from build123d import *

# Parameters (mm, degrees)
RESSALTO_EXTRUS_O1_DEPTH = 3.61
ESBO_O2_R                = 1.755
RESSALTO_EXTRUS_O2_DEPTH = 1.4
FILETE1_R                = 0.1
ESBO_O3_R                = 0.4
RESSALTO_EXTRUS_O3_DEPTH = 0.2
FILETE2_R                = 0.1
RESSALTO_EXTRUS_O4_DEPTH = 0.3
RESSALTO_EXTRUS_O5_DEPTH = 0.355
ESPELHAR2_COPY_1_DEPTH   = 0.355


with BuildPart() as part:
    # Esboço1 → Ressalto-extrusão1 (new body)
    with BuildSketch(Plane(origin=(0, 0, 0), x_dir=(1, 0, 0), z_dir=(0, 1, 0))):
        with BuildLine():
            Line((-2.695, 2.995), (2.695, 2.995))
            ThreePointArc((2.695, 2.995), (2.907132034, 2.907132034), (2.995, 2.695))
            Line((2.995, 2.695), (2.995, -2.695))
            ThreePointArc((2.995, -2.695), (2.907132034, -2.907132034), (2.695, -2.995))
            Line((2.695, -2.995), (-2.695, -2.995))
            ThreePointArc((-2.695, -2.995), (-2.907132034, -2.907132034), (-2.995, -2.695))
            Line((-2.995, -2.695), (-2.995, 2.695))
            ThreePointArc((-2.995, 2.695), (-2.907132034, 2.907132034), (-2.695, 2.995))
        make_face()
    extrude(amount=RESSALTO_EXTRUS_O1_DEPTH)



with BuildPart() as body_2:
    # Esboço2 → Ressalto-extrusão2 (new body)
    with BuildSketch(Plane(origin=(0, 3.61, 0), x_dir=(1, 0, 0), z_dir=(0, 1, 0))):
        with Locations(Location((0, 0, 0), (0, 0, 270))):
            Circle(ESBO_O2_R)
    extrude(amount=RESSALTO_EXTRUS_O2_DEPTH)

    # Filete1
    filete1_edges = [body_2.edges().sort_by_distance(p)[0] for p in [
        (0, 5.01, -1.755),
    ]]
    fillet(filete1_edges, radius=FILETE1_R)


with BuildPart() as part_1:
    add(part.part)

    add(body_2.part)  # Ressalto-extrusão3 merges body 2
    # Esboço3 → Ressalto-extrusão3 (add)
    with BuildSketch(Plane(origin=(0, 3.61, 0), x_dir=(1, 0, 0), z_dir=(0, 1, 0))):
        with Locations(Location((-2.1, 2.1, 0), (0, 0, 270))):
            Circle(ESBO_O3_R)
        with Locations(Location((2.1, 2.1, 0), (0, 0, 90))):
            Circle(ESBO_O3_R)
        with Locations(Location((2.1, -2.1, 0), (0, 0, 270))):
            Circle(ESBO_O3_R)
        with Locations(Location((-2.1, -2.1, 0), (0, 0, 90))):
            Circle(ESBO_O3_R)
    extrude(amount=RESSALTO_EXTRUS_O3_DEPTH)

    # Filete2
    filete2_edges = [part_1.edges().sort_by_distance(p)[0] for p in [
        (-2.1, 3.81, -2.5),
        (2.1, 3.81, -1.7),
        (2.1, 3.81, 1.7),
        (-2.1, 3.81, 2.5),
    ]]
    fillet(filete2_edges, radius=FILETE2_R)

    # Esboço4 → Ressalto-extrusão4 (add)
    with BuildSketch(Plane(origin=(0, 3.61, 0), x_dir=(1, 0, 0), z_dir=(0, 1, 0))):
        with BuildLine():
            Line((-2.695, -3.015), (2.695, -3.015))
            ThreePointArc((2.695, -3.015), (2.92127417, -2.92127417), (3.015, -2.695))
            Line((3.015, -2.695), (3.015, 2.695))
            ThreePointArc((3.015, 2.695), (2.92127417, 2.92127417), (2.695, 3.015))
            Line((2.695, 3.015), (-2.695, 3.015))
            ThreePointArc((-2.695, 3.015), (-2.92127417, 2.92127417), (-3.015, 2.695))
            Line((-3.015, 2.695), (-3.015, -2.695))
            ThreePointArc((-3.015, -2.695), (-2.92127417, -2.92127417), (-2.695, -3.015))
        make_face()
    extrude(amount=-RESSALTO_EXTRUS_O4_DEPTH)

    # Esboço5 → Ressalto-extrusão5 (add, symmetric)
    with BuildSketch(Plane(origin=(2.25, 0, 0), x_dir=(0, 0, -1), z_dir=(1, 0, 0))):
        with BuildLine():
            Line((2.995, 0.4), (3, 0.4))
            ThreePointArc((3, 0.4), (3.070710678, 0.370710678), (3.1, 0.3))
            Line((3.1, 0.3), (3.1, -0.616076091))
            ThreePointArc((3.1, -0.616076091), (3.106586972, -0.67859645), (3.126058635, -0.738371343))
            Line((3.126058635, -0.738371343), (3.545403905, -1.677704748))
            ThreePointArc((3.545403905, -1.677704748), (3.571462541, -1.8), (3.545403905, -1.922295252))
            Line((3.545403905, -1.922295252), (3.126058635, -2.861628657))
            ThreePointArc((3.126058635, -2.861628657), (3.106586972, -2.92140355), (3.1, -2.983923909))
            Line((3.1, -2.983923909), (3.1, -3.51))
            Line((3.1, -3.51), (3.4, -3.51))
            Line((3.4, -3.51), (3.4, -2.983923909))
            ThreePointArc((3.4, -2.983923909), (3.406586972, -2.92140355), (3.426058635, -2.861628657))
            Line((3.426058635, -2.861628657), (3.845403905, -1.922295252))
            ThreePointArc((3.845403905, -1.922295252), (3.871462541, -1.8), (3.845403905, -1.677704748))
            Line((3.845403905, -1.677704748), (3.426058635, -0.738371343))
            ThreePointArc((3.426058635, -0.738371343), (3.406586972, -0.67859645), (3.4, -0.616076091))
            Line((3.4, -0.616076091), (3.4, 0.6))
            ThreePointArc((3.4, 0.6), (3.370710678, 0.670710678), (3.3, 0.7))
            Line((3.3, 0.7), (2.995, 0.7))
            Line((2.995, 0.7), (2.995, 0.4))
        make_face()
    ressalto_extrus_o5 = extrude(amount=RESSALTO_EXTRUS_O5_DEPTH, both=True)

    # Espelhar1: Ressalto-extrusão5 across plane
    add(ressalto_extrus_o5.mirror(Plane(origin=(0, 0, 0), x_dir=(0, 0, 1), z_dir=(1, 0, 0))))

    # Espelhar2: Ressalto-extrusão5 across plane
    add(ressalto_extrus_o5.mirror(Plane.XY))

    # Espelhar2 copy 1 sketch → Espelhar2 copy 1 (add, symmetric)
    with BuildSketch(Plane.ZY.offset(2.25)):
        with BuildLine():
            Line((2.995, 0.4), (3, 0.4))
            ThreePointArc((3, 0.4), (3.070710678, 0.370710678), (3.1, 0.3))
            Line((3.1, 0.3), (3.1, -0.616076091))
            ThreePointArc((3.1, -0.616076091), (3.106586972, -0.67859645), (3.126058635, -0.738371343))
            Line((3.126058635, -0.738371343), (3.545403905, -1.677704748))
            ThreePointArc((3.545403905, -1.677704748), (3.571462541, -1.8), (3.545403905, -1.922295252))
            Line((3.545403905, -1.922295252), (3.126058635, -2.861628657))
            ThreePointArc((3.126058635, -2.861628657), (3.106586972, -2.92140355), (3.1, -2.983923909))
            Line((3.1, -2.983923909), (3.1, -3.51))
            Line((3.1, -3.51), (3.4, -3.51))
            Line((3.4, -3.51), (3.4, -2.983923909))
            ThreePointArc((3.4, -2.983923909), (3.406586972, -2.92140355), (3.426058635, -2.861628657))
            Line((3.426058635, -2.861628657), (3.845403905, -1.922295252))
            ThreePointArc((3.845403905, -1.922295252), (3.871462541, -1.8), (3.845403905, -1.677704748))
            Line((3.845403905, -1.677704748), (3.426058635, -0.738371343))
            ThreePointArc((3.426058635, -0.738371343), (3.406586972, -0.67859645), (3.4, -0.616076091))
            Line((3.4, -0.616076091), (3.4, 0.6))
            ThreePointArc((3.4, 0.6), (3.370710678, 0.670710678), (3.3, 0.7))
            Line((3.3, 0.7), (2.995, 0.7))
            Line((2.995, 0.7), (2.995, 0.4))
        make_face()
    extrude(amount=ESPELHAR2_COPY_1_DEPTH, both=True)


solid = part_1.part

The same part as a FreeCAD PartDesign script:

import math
import FreeCAD as App
import Part
import Sketcher
Q = App.Units.Quantity


def edges_at(feature, points):
    """Names of the edges that pass closest to the given points."""
    edges = feature.Shape.Edges
    near = lambda p: min(range(len(edges)), key=lambda i: edges[i].distToShape(Part.Vertex(*p))[0])
    return sorted({f"Edge{near(p) + 1}" for p in points})

doc = App.newDocument("Part")
body = doc.addObject("PartDesign::Body", "Body")

# Sketch on XZ plane
sketch1 = body.newObject("Sketcher::SketchObject", "Sketch")
sketch1.AttachmentSupport = (doc.getObject("XZ_Plane"), [""])
sketch1.MapMode = "FlatFace"
sketch1.addGeometry(Part.LineSegment(App.Vector(2.695, -2.995, 0), App.Vector(-2.695, -2.995, 0)), False)
sketch1.addGeometry(Part.ArcOfCircle(Part.Circle(App.Vector(-2.695, -2.695, 0), App.Vector(0, 0, 1), 0.3), math.radians(-180), math.radians(-90)), False)
sketch1.addGeometry(Part.LineSegment(App.Vector(-2.995, -2.695, 0), App.Vector(-2.995, 2.695, 0)), False)
sketch1.addGeometry(Part.ArcOfCircle(Part.Circle(App.Vector(-2.695, 2.695, 0), App.Vector(0, 0, 1), 0.3), math.radians(90), math.radians(180)), False)
sketch1.addGeometry(Part.LineSegment(App.Vector(-2.695, 2.995, 0), App.Vector(2.695, 2.995, 0)), False)
sketch1.addGeometry(Part.ArcOfCircle(Part.Circle(App.Vector(2.695, 2.695, 0), App.Vector(0, 0, 1), 0.3), math.radians(0), math.radians(90)), False)
sketch1.addGeometry(Part.LineSegment(App.Vector(2.995, 2.695, 0), App.Vector(2.995, -2.695, 0)), False)
sketch1.addGeometry(Part.ArcOfCircle(Part.Circle(App.Vector(2.695, -2.695, 0), App.Vector(0, 0, 1), 0.3), math.radians(-90), math.radians(0)), False)
sketch1.addConstraint(Sketcher.Constraint("Tangent", 0, 2, 1, 2))
sketch1.addConstraint(Sketcher.Constraint("Tangent", 1, 1, 2, 1))
sketch1.addConstraint(Sketcher.Constraint("Tangent", 2, 2, 3, 2))
sketch1.addConstraint(Sketcher.Constraint("Tangent", 3, 1, 4, 1))
sketch1.addConstraint(Sketcher.Constraint("Tangent", 4, 2, 5, 2))
sketch1.addConstraint(Sketcher.Constraint("Tangent", 5, 1, 6, 1))
sketch1.addConstraint(Sketcher.Constraint("Tangent", 6, 2, 7, 2))
sketch1.addConstraint(Sketcher.Constraint("Tangent", 7, 1, 0, 1))
sketch1.addConstraint(Sketcher.Constraint("Horizontal", 0))
sketch1.addConstraint(Sketcher.Constraint("Vertical", 2))
sketch1.addConstraint(Sketcher.Constraint("Horizontal", 4))
sketch1.addConstraint(Sketcher.Constraint("Vertical", 6))
sketch1.addConstraint(Sketcher.Constraint("Equal", 1, 3))
sketch1.addConstraint(Sketcher.Constraint("Equal", 3, 5))
sketch1.addConstraint(Sketcher.Constraint("Equal", 5, 7))
sketch1.addConstraint(Sketcher.Constraint("Symmetric", 1, 3, 5, 3, -1, 1))
sketch1.addConstraint(Sketcher.Constraint("Equal", 4, 2))
sketch1.addConstraint(Sketcher.Constraint("Radius", 1, Q("0.3 mm")))
sketch1.addConstraint(Sketcher.Constraint("DistanceX", 0, 2, 0, 1, Q("5.39 mm")))
pad1 = body.newObject("PartDesign::Pad", "Pad")
pad1.Profile = sketch1
pad1.Length = 3.61
pad1.Reversed = True
body2 = doc.addObject("PartDesign::Body", "Body001")

# Sketch on XZ plane
sketch2 = body2.newObject("Sketcher::SketchObject", "Sketch001")
sketch2.AttachmentSupport = (doc.getObject("XZ_Plane001"), [""])
sketch2.MapMode = "FlatFace"
sketch2.AttachmentOffset = App.Placement(App.Vector(0, 0, -3.61), App.Rotation())
sketch2.addGeometry(Part.Circle(App.Vector(0, 0, 0), App.Vector(0, 0, 1), 1.755), False)
sketch2.addConstraint(Sketcher.Constraint("Coincident", 0, 3, -1, 1))
sketch2.addConstraint(Sketcher.Constraint("Diameter", 0, Q("3.51 mm")))
pad2 = body2.newObject("PartDesign::Pad", "Pad001")
pad2.Profile = sketch2
pad2.Length = 1.4
pad2.Reversed = True
doc.recompute()

fillet = body2.newObject("PartDesign::Fillet", "Fillet")
fillet.Base = (pad2, edges_at(pad2, [(0, 5.01, -1.755)]))
fillet.Radius = 0.1
doc.recompute()

boolean = body.newObject("PartDesign::Boolean", "Boolean")
boolean.Type = "Fuse"
boolean.addObjects([body2])

# Sketch on XZ plane
sketch3 = body.newObject("Sketcher::SketchObject", "Sketch002")
sketch3.AttachmentSupport = (doc.getObject("XZ_Plane"), [""])
sketch3.MapMode = "FlatFace"
sketch3.AttachmentOffset = App.Placement(App.Vector(0, 0, -3.61), App.Rotation())
sketch3.addGeometry(Part.Circle(App.Vector(-2.1, -2.1, 0), App.Vector(0, 0, 1), 0.4), False)
sketch3.addGeometry(Part.Circle(App.Vector(2.1, -2.1, 0), App.Vector(0, 0, 1), 0.4), False)
sketch3.addGeometry(Part.Circle(App.Vector(2.1, 2.1, 0), App.Vector(0, 0, 1), 0.4), False)
sketch3.addGeometry(Part.Circle(App.Vector(-2.1, 2.1, 0), App.Vector(0, 0, 1), 0.4), False)
sketch3.addConstraint(Sketcher.Constraint("Equal", 0, 1))
sketch3.addConstraint(Sketcher.Constraint("Equal", 1, 2))
sketch3.addConstraint(Sketcher.Constraint("Equal", 2, 3))
sketch3.addConstraint(Sketcher.Constraint("Symmetric", 0, 3, 2, 3, -1, 1))
sketch3.addConstraint(Sketcher.Constraint("Symmetric", 1, 3, 3, 3, -1, 1))
sketch3.addConstraint(Sketcher.Constraint("Symmetric", 0, 3, 1, 3, -2))
sketch3.addConstraint(Sketcher.Constraint("Diameter", 0, Q("0.8 mm")))
sketch3.addConstraint(Sketcher.Constraint("DistanceX", 0, 3, -1, 1, Q("2.1 mm")))
sketch3.addConstraint(Sketcher.Constraint("DistanceY", 0, 3, -1, 1, Q("2.1 mm")))
pad3 = body.newObject("PartDesign::Pad", "Pad002")
pad3.Profile = sketch3
pad3.Length = 0.2
pad3.Reversed = True
doc.recompute()

fillet2 = body.newObject("PartDesign::Fillet", "Fillet001")
fillet2.Base = (pad3, edges_at(pad3, [
    (-2.1, 3.81, -2.5),
    (2.1, 3.81, -1.7),
    (2.1, 3.81, 1.7),
    (-2.1, 3.81, 2.5),
]))
fillet2.Radius = 0.1

# Sketch on XZ plane
sketch4 = body.newObject("Sketcher::SketchObject", "Sketch003")
sketch4.AttachmentSupport = (doc.getObject("XZ_Plane"), [""])
sketch4.MapMode = "FlatFace"
sketch4.AttachmentOffset = App.Placement(App.Vector(0, 0, -3.61), App.Rotation())
sketch4.addGeometry(Part.LineSegment(App.Vector(-2.695, 3.015, 0), App.Vector(2.695, 3.015, 0)), False)
sketch4.addGeometry(Part.ArcOfCircle(Part.Circle(App.Vector(2.695, 2.695, 0), App.Vector(0, 0, 1), 0.32), math.radians(0), math.radians(90)), False)
sketch4.addGeometry(Part.LineSegment(App.Vector(3.015, 2.695, 0), App.Vector(3.015, -2.695, 0)), False)
sketch4.addGeometry(Part.ArcOfCircle(Part.Circle(App.Vector(2.695, -2.695, 0), App.Vector(0, 0, 1), 0.32), math.radians(-90), math.radians(0)), False)
sketch4.addGeometry(Part.LineSegment(App.Vector(2.695, -3.015, 0), App.Vector(-2.695, -3.015, 0)), False)
sketch4.addGeometry(Part.ArcOfCircle(Part.Circle(App.Vector(-2.695, -2.695, 0), App.Vector(0, 0, 1), 0.32), math.radians(180), math.radians(270)), False)
sketch4.addGeometry(Part.LineSegment(App.Vector(-3.015, -2.695, 0), App.Vector(-3.015, 2.695, 0)), False)
sketch4.addGeometry(Part.ArcOfCircle(Part.Circle(App.Vector(-2.695, 2.695, 0), App.Vector(0, 0, 1), 0.32), math.radians(90), math.radians(180)), False)
sketch4.addConstraint(Sketcher.Constraint("Tangent", 0, 2, 1, 2))
sketch4.addConstraint(Sketcher.Constraint("Tangent", 1, 1, 2, 1))
sketch4.addConstraint(Sketcher.Constraint("Tangent", 2, 2, 3, 2))
sketch4.addConstraint(Sketcher.Constraint("Tangent", 3, 1, 4, 1))
sketch4.addConstraint(Sketcher.Constraint("Tangent", 4, 2, 5, 2))
sketch4.addConstraint(Sketcher.Constraint("Tangent", 5, 1, 6, 1))
sketch4.addConstraint(Sketcher.Constraint("Tangent", 6, 2, 7, 2))
sketch4.addConstraint(Sketcher.Constraint("Tangent", 7, 1, 0, 1))
sketch4.addConstraint(Sketcher.Constraint("Horizontal", 0))
sketch4.addConstraint(Sketcher.Constraint("Vertical", 2))
sketch4.addConstraint(Sketcher.Constraint("Horizontal", 4))
sketch4.addConstraint(Sketcher.Constraint("Vertical", 6))
sketch4.addConstraint(Sketcher.Constraint("Equal", 1, 3))
sketch4.addConstraint(Sketcher.Constraint("Equal", 3, 5))
sketch4.addConstraint(Sketcher.Constraint("Equal", 5, 7))
sketch4.addConstraint(Sketcher.Constraint("Symmetric", 1, 3, 5, 3, -1, 1))
sketch4.addConstraint(Sketcher.Constraint("Equal", 4, 2))
sketch4.addConstraint(Sketcher.Constraint("Radius", 1, Q("0.32 mm")))
sketch4.addConstraint(Sketcher.Constraint("DistanceX", 0, 1, 0, 2, Q("5.39 mm")))
pad4 = body.newObject("PartDesign::Pad", "Pad003")
pad4.Profile = sketch4
pad4.Length = 0.3

# Sketch on YZ plane
sketch5 = body.newObject("Sketcher::SketchObject", "Sketch004")
sketch5.AttachmentSupport = (doc.getObject("YZ_Plane"), [""])
sketch5.MapMode = "FlatFace"
sketch5.AttachmentOffset = App.Placement(App.Vector(0, 0, 2.25), App.Rotation())
sketch5.addGeometry(Part.LineSegment(App.Vector(0.4, -2.995, 0), App.Vector(0.4, -3, 0)), False)
sketch5.addGeometry(Part.ArcOfCircle(Part.Circle(App.Vector(0.3, -3, 0), App.Vector(0, 0, 1), 0.1), math.radians(-90), math.radians(0)), False)
sketch5.addGeometry(Part.LineSegment(App.Vector(0.3, -3.1, 0), App.Vector(-0.616076, -3.1, 0)), False)
sketch5.addGeometry(Part.ArcOfCircle(Part.Circle(App.Vector(-0.616076, -3.4, 0), App.Vector(0, 0, 1), 0.3), math.radians(89.999999), math.radians(114.05735)), False)
sketch5.addGeometry(Part.LineSegment(App.Vector(-0.738371, -3.126059, 0), App.Vector(-1.677705, -3.545404, 0)), False)
sketch5.addGeometry(Part.ArcOfCircle(Part.Circle(App.Vector(-1.8, -3.271463, 0), App.Vector(0, 0, 1), 0.3), math.radians(-114.05735), math.radians(-65.94265)), False)
sketch5.addGeometry(Part.LineSegment(App.Vector(-1.922295, -3.545404, 0), App.Vector(-2.861629, -3.126059, 0)), False)
sketch5.addGeometry(Part.ArcOfCircle(Part.Circle(App.Vector(-2.983924, -3.4, 0), App.Vector(0, 0, 1), 0.3), math.radians(65.94265), math.radians(90.000001)), False)
sketch5.addGeometry(Part.LineSegment(App.Vector(-2.983924, -3.1, 0), App.Vector(-3.51, -3.1, 0)), False)
sketch5.addGeometry(Part.LineSegment(App.Vector(-3.51, -3.1, 0), App.Vector(-3.51, -3.4, 0)), False)
sketch5.addGeometry(Part.LineSegment(App.Vector(-3.51, -3.4, 0), App.Vector(-2.983924, -3.4, 0)), False)
sketch5.addGeometry(Part.ArcOfCircle(Part.Circle(App.Vector(-2.983924, -3.7, 0), App.Vector(0, 0, 1), 0.3), math.radians(65.94265), math.radians(90.000001)), False)
sketch5.addGeometry(Part.LineSegment(App.Vector(-2.861629, -3.426059, 0), App.Vector(-1.922295, -3.845404, 0)), False)
sketch5.addGeometry(Part.ArcOfCircle(Part.Circle(App.Vector(-1.8, -3.571463, 0), App.Vector(0, 0, 1), 0.3), math.radians(-114.05735), math.radians(-65.94265)), False)
sketch5.addGeometry(Part.LineSegment(App.Vector(-1.677705, -3.845404, 0), App.Vector(-0.738371, -3.426059, 0)), False)
sketch5.addGeometry(Part.ArcOfCircle(Part.Circle(App.Vector(-0.616076, -3.7, 0), App.Vector(0, 0, 1), 0.3), math.radians(89.999999), math.radians(114.05735)), False)
sketch5.addGeometry(Part.LineSegment(App.Vector(-0.616076, -3.4, 0), App.Vector(0.6, -3.4, 0)), False)
sketch5.addGeometry(Part.ArcOfCircle(Part.Circle(App.Vector(0.6, -3.3, 0), App.Vector(0, 0, 1), 0.1), math.radians(-90), math.radians(0)), False)
sketch5.addGeometry(Part.LineSegment(App.Vector(0.7, -3.3, 0), App.Vector(0.7, -2.995, 0)), False)
sketch5.addGeometry(Part.LineSegment(App.Vector(0.7, -2.995, 0), App.Vector(0.4, -2.995, 0)), False)
sketch5.addConstraint(Sketcher.Constraint("Tangent", 0, 2, 1, 2))
sketch5.addConstraint(Sketcher.Constraint("Tangent", 1, 1, 2, 1))
sketch5.addConstraint(Sketcher.Constraint("Tangent", 2, 2, 3, 1))
sketch5.addConstraint(Sketcher.Constraint("Tangent", 3, 2, 4, 1))
sketch5.addConstraint(Sketcher.Constraint("Tangent", 4, 2, 5, 2))
sketch5.addConstraint(Sketcher.Constraint("Tangent", 5, 1, 6, 1))
sketch5.addConstraint(Sketcher.Constraint("Tangent", 6, 2, 7, 1))
sketch5.addConstraint(Sketcher.Constraint("Tangent", 7, 2, 8, 1))
sketch5.addConstraint(Sketcher.Constraint("Coincident", 8, 2, 9, 1))
sketch5.addConstraint(Sketcher.Constraint("Coincident", 9, 2, 10, 1))
sketch5.addConstraint(Sketcher.Constraint("Tangent", 10, 2, 11, 2))
sketch5.addConstraint(Sketcher.Constraint("Tangent", 11, 1, 12, 1))
sketch5.addConstraint(Sketcher.Constraint("Tangent", 12, 2, 13, 1))
sketch5.addConstraint(Sketcher.Constraint("Tangent", 13, 2, 14, 1))
sketch5.addConstraint(Sketcher.Constraint("Tangent", 14, 2, 15, 2))
sketch5.addConstraint(Sketcher.Constraint("Tangent", 15, 1, 16, 1))
sketch5.addConstraint(Sketcher.Constraint("Tangent", 16, 2, 17, 1))
sketch5.addConstraint(Sketcher.Constraint("Tangent", 17, 2, 18, 1))
sketch5.addConstraint(Sketcher.Constraint("Coincident", 18, 2, 19, 1))
sketch5.addConstraint(Sketcher.Constraint("Coincident", 19, 2, 0, 1))
sketch5.addConstraint(Sketcher.Constraint("Vertical", 0))
sketch5.addConstraint(Sketcher.Constraint("Horizontal", 2))
sketch5.addConstraint(Sketcher.Constraint("Horizontal", 8))
sketch5.addConstraint(Sketcher.Constraint("Vertical", 9))
sketch5.addConstraint(Sketcher.Constraint("Horizontal", 10))
sketch5.addConstraint(Sketcher.Constraint("Horizontal", 16))
sketch5.addConstraint(Sketcher.Constraint("Vertical", 18))
sketch5.addConstraint(Sketcher.Constraint("Horizontal", 19))
sketch5.addConstraint(Sketcher.Constraint("Coincident", 10, 2, 7, 3))
sketch5.addConstraint(Sketcher.Constraint("Coincident", 15, 1, 3, 3))
sketch5.addConstraint(Sketcher.Constraint("Equal", 3, 5))
sketch5.addConstraint(Sketcher.Constraint("Equal", 5, 7))
sketch5.addConstraint(Sketcher.Constraint("Equal", 7, 11))
sketch5.addConstraint(Sketcher.Constraint("Equal", 11, 13))
sketch5.addConstraint(Sketcher.Constraint("Equal", 13, 15))
sketch5.addConstraint(Sketcher.Constraint("Equal", 1, 17))
sketch5.addConstraint(Sketcher.Constraint("Parallel", 6, 12))
sketch5.addConstraint(Sketcher.Constraint("Parallel", 4, 14))
sketch5.addConstraint(Sketcher.Constraint("Horizontal", 3, 3, 7, 3))
sketch5.addConstraint(Sketcher.Constraint("Horizontal", 4, 2, 5, 1))
sketch5.addConstraint(Sketcher.Constraint("Equal", 19, 9))
sketch5.addConstraint(Sketcher.Constraint("Radius", 1, Q("0.1 mm")))
sketch5.addConstraint(Sketcher.Constraint("Radius", 3, Q("0.3 mm")))
sketch5.addConstraint(Sketcher.Constraint("DistanceY", 1, 3, -1, 1, Q("3 mm")))
sketch5.addConstraint(Sketcher.Constraint("DistanceX", -1, 1, 1, 3, Q("0.3 mm")))
sketch5.addConstraint(Sketcher.Constraint("DistanceX", 5, 3, -1, 1, Q("1.8 mm")))
sketch5.addConstraint(Sketcher.Constraint("DistanceY", 0, 2, 0, 1, Q("0.005 mm")))
sketch5.addConstraint(Sketcher.Constraint("DistanceX", 8, 2, -1, 1, Q("3.51 mm")))
sketch5.addConstraint(Sketcher.Constraint("DistanceX", 2, 2, 2, 1, Q("0.916076 mm")))
sketch5.addConstraint(Sketcher.Constraint("DistanceX", 3, 2, -1, 1, Q("0.738371 mm")))
pad5 = body.newObject("PartDesign::Pad", "Pad004")
pad5.Profile = sketch5
pad5.Length = 0.71
pad5.Midplane = True
doc.recompute()

mirrored = body.newObject("PartDesign::Mirrored", "Mirrored")
mirrored.Originals = [pad5]
mirrored.MirrorPlane = (doc.getObject("YZ_Plane"), [""])
body.Tip = mirrored
doc.recompute()

mirrored2 = body.newObject("PartDesign::Mirrored", "Mirrored001")
mirrored2.Originals = [pad5]
mirrored2.MirrorPlane = (doc.getObject("XY_Plane"), [""])
body.Tip = mirrored2

# Sketch on YZ plane
sketch6 = body.newObject("Sketcher::SketchObject", "Sketch005")
sketch6.AttachmentSupport = (doc.getObject("YZ_Plane"), [""])
sketch6.MapMode = "FlatFace"
sketch6.AttachmentOffset = App.Placement(App.Vector(0, 0, -2.25), App.Rotation())
sketch6.addGeometry(Part.LineSegment(App.Vector(0.4, 2.995, 0), App.Vector(0.4, 3, 0)), False)
sketch6.addGeometry(Part.ArcOfCircle(Part.Circle(App.Vector(0.3, 3, 0), App.Vector(0, 0, 1), 0.1), math.radians(0), math.radians(90)), False)
sketch6.addGeometry(Part.LineSegment(App.Vector(0.3, 3.1, 0), App.Vector(-0.616076, 3.1, 0)), False)
sketch6.addGeometry(Part.ArcOfCircle(Part.Circle(App.Vector(-0.616076, 3.4, 0), App.Vector(0, 0, 1), 0.3), math.radians(-114.05735), math.radians(-89.999999)), False)
sketch6.addGeometry(Part.LineSegment(App.Vector(-0.738371, 3.126059, 0), App.Vector(-1.677705, 3.545404, 0)), False)
sketch6.addGeometry(Part.ArcOfCircle(Part.Circle(App.Vector(-1.8, 3.271463, 0), App.Vector(0, 0, 1), 0.3), math.radians(65.94265), math.radians(114.05735)), False)
sketch6.addGeometry(Part.LineSegment(App.Vector(-1.922295, 3.545404, 0), App.Vector(-2.861629, 3.126059, 0)), False)
sketch6.addGeometry(Part.ArcOfCircle(Part.Circle(App.Vector(-2.983924, 3.4, 0), App.Vector(0, 0, 1), 0.3), math.radians(-90.000001), math.radians(-65.94265)), False)
sketch6.addGeometry(Part.LineSegment(App.Vector(-2.983924, 3.1, 0), App.Vector(-3.51, 3.1, 0)), False)
sketch6.addGeometry(Part.LineSegment(App.Vector(-3.51, 3.1, 0), App.Vector(-3.51, 3.4, 0)), False)
sketch6.addGeometry(Part.LineSegment(App.Vector(-3.51, 3.4, 0), App.Vector(-2.983924, 3.4, 0)), False)
sketch6.addGeometry(Part.ArcOfCircle(Part.Circle(App.Vector(-2.983924, 3.7, 0), App.Vector(0, 0, 1), 0.3), math.radians(-90.000001), math.radians(-65.94265)), False)
sketch6.addGeometry(Part.LineSegment(App.Vector(-2.861629, 3.426059, 0), App.Vector(-1.922295, 3.845404, 0)), False)
sketch6.addGeometry(Part.ArcOfCircle(Part.Circle(App.Vector(-1.8, 3.571463, 0), App.Vector(0, 0, 1), 0.3), math.radians(65.94265), math.radians(114.05735)), False)
sketch6.addGeometry(Part.LineSegment(App.Vector(-1.677705, 3.845404, 0), App.Vector(-0.738371, 3.426059, 0)), False)
sketch6.addGeometry(Part.ArcOfCircle(Part.Circle(App.Vector(-0.616076, 3.7, 0), App.Vector(0, 0, 1), 0.3), math.radians(-114.05735), math.radians(-89.999999)), False)
sketch6.addGeometry(Part.LineSegment(App.Vector(-0.616076, 3.4, 0), App.Vector(0.6, 3.4, 0)), False)
sketch6.addGeometry(Part.ArcOfCircle(Part.Circle(App.Vector(0.6, 3.3, 0), App.Vector(0, 0, 1), 0.1), math.radians(0), math.radians(90)), False)
sketch6.addGeometry(Part.LineSegment(App.Vector(0.7, 3.3, 0), App.Vector(0.7, 2.995, 0)), False)
sketch6.addGeometry(Part.LineSegment(App.Vector(0.7, 2.995, 0), App.Vector(0.4, 2.995, 0)), False)
sketch6.addConstraint(Sketcher.Constraint("Tangent", 0, 2, 1, 1))
sketch6.addConstraint(Sketcher.Constraint("Tangent", 1, 2, 2, 1))
sketch6.addConstraint(Sketcher.Constraint("Tangent", 2, 2, 3, 2))
sketch6.addConstraint(Sketcher.Constraint("Tangent", 3, 1, 4, 1))
sketch6.addConstraint(Sketcher.Constraint("Tangent", 4, 2, 5, 1))
sketch6.addConstraint(Sketcher.Constraint("Tangent", 5, 2, 6, 1))
sketch6.addConstraint(Sketcher.Constraint("Tangent", 6, 2, 7, 2))
sketch6.addConstraint(Sketcher.Constraint("Tangent", 7, 1, 8, 1))
sketch6.addConstraint(Sketcher.Constraint("Coincident", 8, 2, 9, 1))
sketch6.addConstraint(Sketcher.Constraint("Coincident", 9, 2, 10, 1))
sketch6.addConstraint(Sketcher.Constraint("Tangent", 10, 2, 11, 1))
sketch6.addConstraint(Sketcher.Constraint("Tangent", 11, 2, 12, 1))
sketch6.addConstraint(Sketcher.Constraint("Tangent", 12, 2, 13, 2))
sketch6.addConstraint(Sketcher.Constraint("Tangent", 13, 1, 14, 1))
sketch6.addConstraint(Sketcher.Constraint("Tangent", 14, 2, 15, 1))
sketch6.addConstraint(Sketcher.Constraint("Tangent", 15, 2, 16, 1))
sketch6.addConstraint(Sketcher.Constraint("Tangent", 16, 2, 17, 2))
sketch6.addConstraint(Sketcher.Constraint("Tangent", 17, 1, 18, 1))
sketch6.addConstraint(Sketcher.Constraint("Coincident", 18, 2, 19, 1))
sketch6.addConstraint(Sketcher.Constraint("Coincident", 19, 2, 0, 1))
sketch6.addConstraint(Sketcher.Constraint("Vertical", 0))
sketch6.addConstraint(Sketcher.Constraint("Horizontal", 2))
sketch6.addConstraint(Sketcher.Constraint("Horizontal", 8))
sketch6.addConstraint(Sketcher.Constraint("Vertical", 9))
sketch6.addConstraint(Sketcher.Constraint("Horizontal", 10))
sketch6.addConstraint(Sketcher.Constraint("Horizontal", 16))
sketch6.addConstraint(Sketcher.Constraint("Vertical", 18))
sketch6.addConstraint(Sketcher.Constraint("Horizontal", 19))
sketch6.addConstraint(Sketcher.Constraint("Coincident", 10, 2, 7, 3))
sketch6.addConstraint(Sketcher.Constraint("Coincident", 15, 2, 3, 3))
sketch6.addConstraint(Sketcher.Constraint("Equal", 3, 5))
sketch6.addConstraint(Sketcher.Constraint("Equal", 5, 7))
sketch6.addConstraint(Sketcher.Constraint("Equal", 7, 11))
sketch6.addConstraint(Sketcher.Constraint("Equal", 11, 13))
sketch6.addConstraint(Sketcher.Constraint("Equal", 13, 15))
sketch6.addConstraint(Sketcher.Constraint("Equal", 1, 17))
sketch6.addConstraint(Sketcher.Constraint("Parallel", 6, 12))
sketch6.addConstraint(Sketcher.Constraint("Parallel", 4, 14))
sketch6.addConstraint(Sketcher.Constraint("Horizontal", 3, 3, 7, 3))
sketch6.addConstraint(Sketcher.Constraint("Horizontal", 4, 2, 5, 2))
sketch6.addConstraint(Sketcher.Constraint("Equal", 19, 9))
sketch6.addConstraint(Sketcher.Constraint("Radius", 1, Q("0.1 mm")))
sketch6.addConstraint(Sketcher.Constraint("Radius", 3, Q("0.3 mm")))
sketch6.addConstraint(Sketcher.Constraint("DistanceY", -1, 1, 1, 3, Q("3 mm")))
sketch6.addConstraint(Sketcher.Constraint("DistanceX", -1, 1, 1, 3, Q("0.3 mm")))
sketch6.addConstraint(Sketcher.Constraint("DistanceX", 5, 3, -1, 1, Q("1.8 mm")))
sketch6.addConstraint(Sketcher.Constraint("DistanceY", 0, 1, 0, 2, Q("0.005 mm")))
sketch6.addConstraint(Sketcher.Constraint("DistanceX", 8, 2, -1, 1, Q("3.51 mm")))
sketch6.addConstraint(Sketcher.Constraint("DistanceX", 2, 2, 2, 1, Q("0.916076 mm")))
sketch6.addConstraint(Sketcher.Constraint("DistanceX", 3, 1, -1, 1, Q("0.738371 mm")))
pad6 = body.newObject("PartDesign::Pad", "Pad005")
pad6.Profile = sketch6
pad6.Length = 0.71
pad6.Midplane = True

doc.recompute()
